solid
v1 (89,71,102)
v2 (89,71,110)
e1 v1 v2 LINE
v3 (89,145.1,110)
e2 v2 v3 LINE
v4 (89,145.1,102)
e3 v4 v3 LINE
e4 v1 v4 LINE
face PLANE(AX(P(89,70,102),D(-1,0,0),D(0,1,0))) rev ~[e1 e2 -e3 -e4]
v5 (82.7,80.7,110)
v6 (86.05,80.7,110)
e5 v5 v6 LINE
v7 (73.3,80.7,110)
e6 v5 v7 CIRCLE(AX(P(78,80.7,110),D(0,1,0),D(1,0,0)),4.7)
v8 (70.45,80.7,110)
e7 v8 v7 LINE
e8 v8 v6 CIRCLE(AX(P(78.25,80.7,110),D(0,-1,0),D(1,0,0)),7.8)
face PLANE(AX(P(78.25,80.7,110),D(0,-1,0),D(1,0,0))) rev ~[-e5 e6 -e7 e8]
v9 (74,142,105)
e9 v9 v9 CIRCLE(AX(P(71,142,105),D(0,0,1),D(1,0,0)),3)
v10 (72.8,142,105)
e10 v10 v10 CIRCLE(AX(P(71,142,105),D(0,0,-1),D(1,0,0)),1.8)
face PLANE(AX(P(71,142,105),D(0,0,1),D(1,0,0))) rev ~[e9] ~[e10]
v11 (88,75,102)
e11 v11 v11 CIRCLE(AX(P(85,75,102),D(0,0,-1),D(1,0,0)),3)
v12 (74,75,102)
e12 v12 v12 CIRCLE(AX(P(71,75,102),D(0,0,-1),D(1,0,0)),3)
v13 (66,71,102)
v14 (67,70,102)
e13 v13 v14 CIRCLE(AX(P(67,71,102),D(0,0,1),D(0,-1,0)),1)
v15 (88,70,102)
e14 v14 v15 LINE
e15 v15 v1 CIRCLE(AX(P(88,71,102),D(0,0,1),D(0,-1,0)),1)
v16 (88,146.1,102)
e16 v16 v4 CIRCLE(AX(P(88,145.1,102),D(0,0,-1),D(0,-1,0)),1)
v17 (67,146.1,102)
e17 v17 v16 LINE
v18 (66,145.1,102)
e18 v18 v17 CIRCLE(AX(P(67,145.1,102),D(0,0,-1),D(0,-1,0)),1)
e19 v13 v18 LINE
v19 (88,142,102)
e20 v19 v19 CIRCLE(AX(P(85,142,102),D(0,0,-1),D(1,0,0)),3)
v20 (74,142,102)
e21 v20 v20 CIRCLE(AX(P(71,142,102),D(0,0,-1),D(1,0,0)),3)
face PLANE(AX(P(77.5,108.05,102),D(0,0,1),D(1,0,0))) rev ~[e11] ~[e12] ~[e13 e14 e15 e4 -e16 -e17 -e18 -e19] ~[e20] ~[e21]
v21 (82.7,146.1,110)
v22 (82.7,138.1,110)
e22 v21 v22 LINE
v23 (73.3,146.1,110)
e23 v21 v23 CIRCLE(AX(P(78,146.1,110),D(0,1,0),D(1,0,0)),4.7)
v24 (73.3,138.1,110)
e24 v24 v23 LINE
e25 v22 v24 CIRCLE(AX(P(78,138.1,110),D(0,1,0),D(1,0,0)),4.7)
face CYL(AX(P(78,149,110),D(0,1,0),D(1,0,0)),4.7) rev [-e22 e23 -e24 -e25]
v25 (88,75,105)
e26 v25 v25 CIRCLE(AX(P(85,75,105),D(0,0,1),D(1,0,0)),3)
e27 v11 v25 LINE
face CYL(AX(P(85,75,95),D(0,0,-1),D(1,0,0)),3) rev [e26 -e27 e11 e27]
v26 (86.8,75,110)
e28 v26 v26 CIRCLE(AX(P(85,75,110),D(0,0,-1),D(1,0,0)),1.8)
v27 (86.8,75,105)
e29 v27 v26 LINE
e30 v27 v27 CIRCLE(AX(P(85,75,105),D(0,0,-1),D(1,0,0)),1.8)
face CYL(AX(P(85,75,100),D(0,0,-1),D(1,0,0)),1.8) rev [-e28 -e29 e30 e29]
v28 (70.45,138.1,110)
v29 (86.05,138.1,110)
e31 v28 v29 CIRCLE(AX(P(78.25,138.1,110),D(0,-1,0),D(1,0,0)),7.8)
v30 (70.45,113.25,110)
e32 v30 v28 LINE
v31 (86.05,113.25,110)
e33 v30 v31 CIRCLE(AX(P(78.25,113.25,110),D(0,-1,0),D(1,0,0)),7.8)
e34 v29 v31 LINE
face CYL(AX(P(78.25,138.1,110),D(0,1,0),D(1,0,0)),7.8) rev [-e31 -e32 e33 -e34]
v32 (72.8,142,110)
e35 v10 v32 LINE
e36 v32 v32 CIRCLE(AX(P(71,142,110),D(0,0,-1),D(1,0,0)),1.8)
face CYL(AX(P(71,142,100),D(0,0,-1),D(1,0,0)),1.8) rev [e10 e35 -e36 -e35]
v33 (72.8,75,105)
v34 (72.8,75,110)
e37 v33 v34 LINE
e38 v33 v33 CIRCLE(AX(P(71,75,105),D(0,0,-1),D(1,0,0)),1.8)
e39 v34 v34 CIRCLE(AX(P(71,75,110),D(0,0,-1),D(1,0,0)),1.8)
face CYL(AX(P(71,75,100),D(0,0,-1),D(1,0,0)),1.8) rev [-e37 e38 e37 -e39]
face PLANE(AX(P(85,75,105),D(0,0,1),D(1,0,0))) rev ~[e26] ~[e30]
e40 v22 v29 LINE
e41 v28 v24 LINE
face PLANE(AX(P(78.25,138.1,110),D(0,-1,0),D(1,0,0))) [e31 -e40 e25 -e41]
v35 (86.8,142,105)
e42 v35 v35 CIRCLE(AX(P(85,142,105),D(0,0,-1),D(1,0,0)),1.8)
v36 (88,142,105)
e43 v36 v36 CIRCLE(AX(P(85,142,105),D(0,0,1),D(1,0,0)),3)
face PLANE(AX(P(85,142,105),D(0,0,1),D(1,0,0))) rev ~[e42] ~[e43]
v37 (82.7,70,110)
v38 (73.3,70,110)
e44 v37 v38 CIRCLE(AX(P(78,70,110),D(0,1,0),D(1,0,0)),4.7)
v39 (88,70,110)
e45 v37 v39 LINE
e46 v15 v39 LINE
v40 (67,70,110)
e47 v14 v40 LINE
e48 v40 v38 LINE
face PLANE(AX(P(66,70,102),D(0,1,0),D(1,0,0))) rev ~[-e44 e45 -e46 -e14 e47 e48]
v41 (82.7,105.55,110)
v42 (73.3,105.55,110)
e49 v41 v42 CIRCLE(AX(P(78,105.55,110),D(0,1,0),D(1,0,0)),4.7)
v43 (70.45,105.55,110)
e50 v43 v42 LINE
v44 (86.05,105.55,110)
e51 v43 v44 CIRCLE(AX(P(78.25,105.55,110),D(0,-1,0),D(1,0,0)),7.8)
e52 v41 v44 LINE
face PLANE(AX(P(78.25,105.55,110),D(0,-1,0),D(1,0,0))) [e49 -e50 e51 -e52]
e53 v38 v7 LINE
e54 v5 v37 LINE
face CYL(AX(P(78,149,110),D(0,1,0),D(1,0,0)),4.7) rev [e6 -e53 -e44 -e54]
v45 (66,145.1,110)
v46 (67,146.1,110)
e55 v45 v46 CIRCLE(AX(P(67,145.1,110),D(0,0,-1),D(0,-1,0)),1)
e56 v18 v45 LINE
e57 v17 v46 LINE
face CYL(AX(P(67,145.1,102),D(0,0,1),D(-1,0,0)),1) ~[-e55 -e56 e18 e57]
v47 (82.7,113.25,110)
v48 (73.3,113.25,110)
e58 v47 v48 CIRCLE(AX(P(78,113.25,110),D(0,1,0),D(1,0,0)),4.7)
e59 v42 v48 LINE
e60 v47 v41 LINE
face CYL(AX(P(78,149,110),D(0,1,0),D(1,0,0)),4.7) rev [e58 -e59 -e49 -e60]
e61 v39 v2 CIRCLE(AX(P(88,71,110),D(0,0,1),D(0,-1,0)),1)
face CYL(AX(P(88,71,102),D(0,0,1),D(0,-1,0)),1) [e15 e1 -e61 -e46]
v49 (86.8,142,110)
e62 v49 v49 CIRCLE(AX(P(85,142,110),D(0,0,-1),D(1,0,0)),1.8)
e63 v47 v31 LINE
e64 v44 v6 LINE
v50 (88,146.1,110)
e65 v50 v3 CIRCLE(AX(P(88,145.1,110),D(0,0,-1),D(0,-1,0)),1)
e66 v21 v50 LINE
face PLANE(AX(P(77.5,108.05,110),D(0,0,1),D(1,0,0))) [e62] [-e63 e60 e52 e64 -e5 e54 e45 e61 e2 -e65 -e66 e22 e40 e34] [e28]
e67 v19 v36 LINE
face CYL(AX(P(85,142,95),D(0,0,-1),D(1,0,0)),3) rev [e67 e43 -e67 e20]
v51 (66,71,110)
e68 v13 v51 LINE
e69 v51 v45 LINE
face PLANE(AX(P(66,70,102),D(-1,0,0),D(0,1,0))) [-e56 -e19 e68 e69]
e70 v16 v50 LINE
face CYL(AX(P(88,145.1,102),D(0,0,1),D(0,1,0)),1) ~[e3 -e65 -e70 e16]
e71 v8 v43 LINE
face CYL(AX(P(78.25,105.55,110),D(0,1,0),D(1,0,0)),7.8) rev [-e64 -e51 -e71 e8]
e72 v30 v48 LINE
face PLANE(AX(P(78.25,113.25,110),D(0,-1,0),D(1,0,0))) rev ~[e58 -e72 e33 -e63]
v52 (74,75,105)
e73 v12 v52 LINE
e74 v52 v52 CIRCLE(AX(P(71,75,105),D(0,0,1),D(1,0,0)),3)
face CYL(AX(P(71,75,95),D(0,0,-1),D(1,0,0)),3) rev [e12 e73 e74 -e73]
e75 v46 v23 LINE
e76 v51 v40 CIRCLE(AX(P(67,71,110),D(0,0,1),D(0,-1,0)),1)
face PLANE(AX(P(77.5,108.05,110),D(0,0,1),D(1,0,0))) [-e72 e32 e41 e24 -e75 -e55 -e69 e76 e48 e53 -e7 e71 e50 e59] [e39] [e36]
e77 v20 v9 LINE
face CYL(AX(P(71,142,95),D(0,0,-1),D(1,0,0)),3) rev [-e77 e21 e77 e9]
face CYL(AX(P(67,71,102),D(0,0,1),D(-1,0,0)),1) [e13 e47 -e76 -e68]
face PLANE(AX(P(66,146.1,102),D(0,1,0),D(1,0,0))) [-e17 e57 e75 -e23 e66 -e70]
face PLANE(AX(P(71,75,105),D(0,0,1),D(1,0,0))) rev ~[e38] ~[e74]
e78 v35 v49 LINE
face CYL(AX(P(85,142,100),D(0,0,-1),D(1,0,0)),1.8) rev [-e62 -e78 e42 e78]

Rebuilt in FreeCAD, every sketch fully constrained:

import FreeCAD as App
import Part
import Sketcher
from FreeCAD import Vector


def edges_at(feature, points):
    """Names of the edges that pass closest to the given points."""
    edges = feature.Shape.Edges
    near = lambda p: min(range(len(edges)), key=lambda i: edges[i].distToShape(Part.Vertex(*p))[0])
    return sorted({f"Edge{near(p) + 1}" for p in points})


def add_polygon(sketch, points):
    """Adds a closed chain of lines whose ends are joined by coincident constraints."""
    first, n = sketch.GeometryCount, len(points)
    for a, b in zip(points, points[1:] + points[:1]):
        sketch.addGeometry(Part.LineSegment(App.Vector(*a, 0), App.Vector(*b, 0)), False)
    for i in range(n):
        sketch.addConstraint(Sketcher.Constraint("Coincident", first + i, 2, first + (i + 1) % n, 1))

doc = App.newDocument("Part")
body = doc.addObject("PartDesign::Body", "Body")

# Sketch on XY plane
sketch1 = body.newObject("Sketcher::SketchObject", "Sketch")
sketch1.AttachmentSupport = (doc.getObject("XY_Plane"), [""])
sketch1.MapMode = "FlatFace"
sketch1.addGeometry(Part.Circle(Vector(0, 0, 0), Vector(0, 0, 1), 4.7), False)
sketch1.addConstraint(Sketcher.Constraint("Coincident", 0, 3, -1, 1))
sketch1.addConstraint(Sketcher.Constraint("Diameter", 0, 9.4))
pad1 = body.newObject("PartDesign::Pad", "Pad")
pad1.Profile = sketch1
pad1.Length = 100
body2 = doc.addObject("PartDesign::Body", "Body001")
doc.recompute()

body.Placement = App.Placement(Vector(0, 0, 0), App.Rotation(Vector(1, 0, 0), 90))
boolean = body2.newObject("PartDesign::Boolean", "Boolean")
boolean.Type = "Fuse"
boolean.addObjects([body])
body3 = doc.addObject("PartDesign::Body", "Body002")
doc.recompute()

body2.Placement = App.Placement(Vector(12, 79, 0), App.Rotation(Vector(0, 0, 1), 0))
boolean2 = body3.newObject("PartDesign::Boolean", "Boolean001")
boolean2.Type = "Fuse"
boolean2.addObjects([body2])
body4 = doc.addObject("PartDesign::Body", "Body003")

# Sketch on XY plane
sketch2 = body4.newObject("Sketcher::SketchObject", "Sketch001")
sketch2.AttachmentSupport = (doc.getObject("XY_Plane003"), [""])
sketch2.MapMode = "FlatFace"
sketch2.AttachmentOffset = App.Placement(Vector(0, 0, -10), App.Rotation())
sketch2.addGeometry(Part.Circle(Vector(19, 5, 0), Vector(0, 0, 1), 1.8), False)
sketch2.addConstraint(Sketcher.Constraint("Diameter", 0, 3.6))
sketch2.addConstraint(Sketcher.Constraint("DistanceX", -1, 1, 0, 3, 19.0))
sketch2.addConstraint(Sketcher.Constraint("DistanceY", -1, 1, 0, 3, 5.0))
pad2 = body4.newObject("PartDesign::Pad", "Pad001")
pad2.Profile = sketch2
pad2.Length = 20
body5 = doc.addObject("PartDesign::Body", "Body004")

# Sketch on XY plane
sketch3 = body5.newObject("Sketcher::SketchObject", "Sketch002")
sketch3.AttachmentSupport = (doc.getObject("XY_Plane004"), [""])
sketch3.MapMode = "FlatFace"
sketch3.AttachmentOffset = App.Placement(Vector(0, 0, -15), App.Rotation())
sketch3.addGeometry(Part.Circle(Vector(19, 5, 0), Vector(0, 0, 1), 3), False)
sketch3.addConstraint(Sketcher.Constraint("Diameter", 0, 6.0))
sketch3.addConstraint(Sketcher.Constraint("DistanceX", -1, 1, 0, 3, 19.0))
sketch3.addConstraint(Sketcher.Constraint("DistanceY", -1, 1, 0, 3, 5.0))
pad3 = body5.newObject("PartDesign::Pad", "Pad002")
pad3.Profile = sketch3
pad3.Length = 10
body6 = doc.addObject("PartDesign::Body", "Body005")

# Sketch on XY plane
sketch4 = body6.newObject("Sketcher::SketchObject", "Sketch003")
sketch4.AttachmentSupport = (doc.getObject("XY_Plane005"), [""])
sketch4.MapMode = "FlatFace"
sketch4.AttachmentOffset = App.Placement(Vector(0, 0, -10), App.Rotation())
sketch4.addGeometry(Part.Circle(Vector(19, 72, 0), Vector(0, 0, 1), 1.8), False)
sketch4.addConstraint(Sketcher.Constraint("Diameter", 0, 3.6))
sketch4.addConstraint(Sketcher.Constraint("DistanceX", -1, 1, 0, 3, 19.0))
sketch4.addConstraint(Sketcher.Constraint("DistanceY", -1, 1, 0, 3, 72.0))
pad4 = body6.newObject("PartDesign::Pad", "Pad003")
pad4.Profile = sketch4
pad4.Length = 20
body7 = doc.addObject("PartDesign::Body", "Body006")

# Sketch on XY plane
sketch5 = body7.newObject("Sketcher::SketchObject", "Sketch004")
sketch5.AttachmentSupport = (doc.getObject("XY_Plane006"), [""])
sketch5.MapMode = "FlatFace"
sketch5.AttachmentOffset = App.Placement(Vector(0, 0, -15), App.Rotation())
sketch5.addGeometry(Part.Circle(Vector(19, 72, 0), Vector(0, 0, 1), 3), False)
sketch5.addConstraint(Sketcher.Constraint("Diameter", 0, 6.0))
sketch5.addConstraint(Sketcher.Constraint("DistanceX", -1, 1, 0, 3, 19.0))
sketch5.addConstraint(Sketcher.Constraint("DistanceY", -1, 1, 0, 3, 72.0))
pad5 = body7.newObject("PartDesign::Pad", "Pad004")
pad5.Profile = sketch5
pad5.Length = 10
body8 = doc.addObject("PartDesign::Body", "Body007")

# Sketch on XY plane
sketch6 = body8.newObject("Sketcher::SketchObject", "Sketch005")
sketch6.AttachmentSupport = (doc.getObject("XY_Plane007"), [""])
sketch6.MapMode = "FlatFace"
sketch6.AttachmentOffset = App.Placement(Vector(0, 0, -15), App.Rotation())
sketch6.addGeometry(Part.Circle(Vector(5, 72, 0), Vector(0, 0, 1), 3), False)
sketch6.addConstraint(Sketcher.Constraint("Diameter", 0, 6.0))
sketch6.addConstraint(Sketcher.Constraint("DistanceX", -1, 1, 0, 3, 5.0))
sketch6.addConstraint(Sketcher.Constraint("DistanceY", -1, 1, 0, 3, 72.0))
pad6 = body8.newObject("PartDesign::Pad", "Pad005")
pad6.Profile = sketch6
pad6.Length = 10
body9 = doc.addObject("PartDesign::Body", "Body008")

# Sketch on XY plane
sketch7 = body9.newObject("Sketcher::SketchObject", "Sketch006")
sketch7.AttachmentSupport = (doc.getObject("XY_Plane008"), [""])
sketch7.MapMode = "FlatFace"
sketch7.AttachmentOffset = App.Placement(Vector(0, 0, -15), App.Rotation())
sketch7.addGeometry(Part.Circle(Vector(5, 5, 0), Vector(0, 0, 1), 3), False)
sketch7.addConstraint(Sketcher.Constraint("Diameter", 0, 6.0))
sketch7.addConstraint(Sketcher.Constraint("DistanceX", -1, 1, 0, 3, 5.0))
sketch7.addConstraint(Sketcher.Constraint("DistanceY", -1, 1, 0, 3, 5.0))
pad7 = body9.newObject("PartDesign::Pad", "Pad006")
pad7.Profile = sketch7
pad7.Length = 10
body10 = doc.addObject("PartDesign::Body", "Body009")

# Sketch on XY plane
sketch8 = body10.newObject("Sketcher::SketchObject", "Sketch007")
sketch8.AttachmentSupport = (doc.getObject("XY_Plane009"), [""])
sketch8.MapMode = "FlatFace"
sketch8.AttachmentOffset = App.Placement(Vector(0, 0, -10), App.Rotation())
sketch8.addGeometry(Part.Circle(Vector(5, 5, 0), Vector(0, 0, 1), 1.8), False)
sketch8.addConstraint(Sketcher.Constraint("Diameter", 0, 3.6))
sketch8.addConstraint(Sketcher.Constraint("DistanceX", -1, 1, 0, 3, 5.0))
sketch8.addConstraint(Sketcher.Constraint("DistanceY", -1, 1, 0, 3, 5.0))
pad8 = body10.newObject("PartDesign::Pad", "Pad007")
pad8.Profile = sketch8
pad8.Length = 20
body11 = doc.addObject("PartDesign::Body", "Body010")

# Sketch on XY plane
sketch9 = body11.newObject("Sketcher::SketchObject", "Sketch008")
sketch9.AttachmentSupport = (doc.getObject("XY_Plane010"), [""])
sketch9.MapMode = "FlatFace"
sketch9.AttachmentOffset = App.Placement(Vector(0, 0, -10), App.Rotation())
sketch9.addGeometry(Part.Circle(Vector(5, 72, 0), Vector(0, 0, 1), 1.8), False)
sketch9.addConstraint(Sketcher.Constraint("Diameter", 0, 3.6))
sketch9.addConstraint(Sketcher.Constraint("DistanceX", -1, 1, 0, 3, 5.0))
sketch9.addConstraint(Sketcher.Constraint("DistanceY", -1, 1, 0, 3, 72.0))
pad9 = body11.newObject("PartDesign::Pad", "Pad008")
pad9.Profile = sketch9
pad9.Length = 20
body12 = doc.addObject("PartDesign::Body", "Body011")

# Sketch on XY plane
sketch10 = body12.newObject("Sketcher::SketchObject", "Sketch009")
sketch10.AttachmentSupport = (doc.getObject("XY_Plane011"), [""])
sketch10.MapMode = "FlatFace"
sketch10.addGeometry(Part.Circle(Vector(0, 0, 0), Vector(0, 0, 1), 8), False)
sketch10.addConstraint(Sketcher.Constraint("Coincident", 0, 3, -1, 1))
sketch10.addConstraint(Sketcher.Constraint("Diameter", 0, 15.6))
pad10 = body12.newObject("PartDesign::Pad", "Pad009")
pad10.Profile = sketch10
pad10.Length = 24.85
body13 = doc.addObject("PartDesign::Body", "Body012")
doc.recompute()

body12.Placement = App.Placement(Vector(0, 0, 0), App.Rotation(Vector(1, 0, 0), 90))
boolean3 = body13.newObject("PartDesign::Boolean", "Boolean002")
boolean3.Type = "Fuse"
boolean3.addObjects([body12])
body14 = doc.addObject("PartDesign::Body", "Body013")
doc.recompute()

body13.Placement = App.Placement(Vector(12.25, 68.1, 0), App.Rotation(Vector(0, 0, 1), 0))
boolean4 = body14.newObject("PartDesign::Boolean", "Boolean003")
boolean4.Type = "Fuse"
boolean4.addObjects([body13])
body15 = doc.addObject("PartDesign::Body", "Body014")

# Sketch on XY plane
sketch11 = body15.newObject("Sketcher::SketchObject", "Sketch010")
sketch11.AttachmentSupport = (doc.getObject("XY_Plane014"), [""])
sketch11.MapMode = "FlatFace"
sketch11.addGeometry(Part.Circle(Vector(0, 0, 0), Vector(0, 0, 1), 4.4), False)
sketch11.addConstraint(Sketcher.Constraint("Coincident", 0, 3, -1, 1))
sketch11.addConstraint(Sketcher.Constraint("Diameter", 0, 8.8))
pad11 = body15.newObject("PartDesign::Pad", "Pad010")
pad11.Profile = sketch11
pad11.Length = 76.1
body16 = doc.addObject("PartDesign::Body", "Body015")
doc.recompute()

body15.Placement = App.Placement(Vector(0, 0, 0), App.Rotation(Vector(1, 0, 0), 90))
boolean5 = body16.newObject("PartDesign::Boolean", "Boolean004")
boolean5.Type = "Fuse"
boolean5.addObjects([body15])
body17 = doc.addObject("PartDesign::Body", "Body016")
doc.recompute()

body16.Placement = App.Placement(Vector(12.25, 76.1, 0), App.Rotation(Vector(0, 0, 1), 0))
boolean6 = body17.newObject("PartDesign::Boolean", "Boolean005")
boolean6.Type = "Fuse"
boolean6.addObjects([body16])
body18 = doc.addObject("PartDesign::Body", "Body017")

# Sketch on XY plane
sketch12 = body18.newObject("Sketcher::SketchObject", "Sketch011")
sketch12.AttachmentSupport = (doc.getObject("XY_Plane017"), [""])
sketch12.MapMode = "FlatFace"
sketch12.addGeometry(Part.Circle(Vector(0, 0, 0), Vector(0, 0, 1), 8), False)
sketch12.addConstraint(Sketcher.Constraint("Coincident", 0, 3, -1, 1))
sketch12.addConstraint(Sketcher.Constraint("Diameter", 0, 15.6))
pad12 = body18.newObject("PartDesign::Pad", "Pad011")
pad12.Profile = sketch12
pad12.Length = 24.85
body19 = doc.addObject("PartDesign::Body", "Body018")
doc.recompute()

body18.Placement = App.Placement(Vector(0, 0, 0), App.Rotation(Vector(1, 0, 0), 90))
boolean7 = body19.newObject("PartDesign::Boolean", "Boolean006")
boolean7.Type = "Fuse"
boolean7.addObjects([body18])
body20 = doc.addObject("PartDesign::Body", "Body019")
doc.recompute()

body19.Placement = App.Placement(Vector(12.25, 35.55, 0), App.Rotation(Vector(0, 0, 1), 0))
boolean8 = body20.newObject("PartDesign::Boolean", "Boolean007")
boolean8.Type = "Fuse"
boolean8.addObjects([body19])
body21 = doc.addObject("PartDesign::Body", "Body020")

# Sketch on XY plane
sketch13 = body21.newObject("Sketcher::SketchObject", "Sketch012")
sketch13.AttachmentSupport = (doc.getObject("XY_Plane020"), [""])
sketch13.MapMode = "FlatFace"
sketch13.AttachmentOffset = App.Placement(Vector(0, 0, -8), App.Rotation())
add_polygon(sketch13, [(0, 76), (0, 0), (23, 0), (23, 76)])  # lines 0-3
sketch13.addConstraint(Sketcher.Constraint("Vertical", 0))
sketch13.addConstraint(Sketcher.Constraint("Horizontal", 1))
sketch13.addConstraint(Sketcher.Constraint("Vertical", 2))
sketch13.addConstraint(Sketcher.Constraint("Horizontal", 3))
sketch13.addConstraint(Sketcher.Constraint("Coincident", 0, 2, -1, 1))
sketch13.addConstraint(Sketcher.Constraint("DistanceX", 1, 1, 1, 2, 23.0))
sketch13.addConstraint(Sketcher.Constraint("DistanceY", 0, 2, 0, 1, 76.1))
pad13 = body21.newObject("PartDesign::Pad", "Pad012")
pad13.Profile = sketch13
pad13.Length = 8
doc.recompute()

boolean9 = body21.newObject("PartDesign::Boolean", "Boolean008")
boolean9.Type = "Cut"
boolean9.addObjects([body20])
doc.recompute()

boolean10 = body21.newObject("PartDesign::Boolean", "Boolean009")
boolean10.Type = "Cut"
boolean10.addObjects([body17])
doc.recompute()

boolean11 = body21.newObject("PartDesign::Boolean", "Boolean010")
boolean11.Type = "Cut"
boolean11.addObjects([body14])
doc.recompute()

boolean12 = body21.newObject("PartDesign::Boolean", "Boolean011")
boolean12.Type = "Cut"
boolean12.addObjects([body11])
doc.recompute()

boolean13 = body21.newObject("PartDesign::Boolean", "Boolean012")
boolean13.Type = "Cut"
boolean13.addObjects([body10])
doc.recompute()

fillet = body21.newObject("PartDesign::Fillet", "Fillet")
fillet.Base = (boolean13, edges_at(boolean13, [
    (0, 0, -4),
    (0, 76.1, -4),
    (23, 0, -4),
    (23, 76.1, -4),
]))
fillet.Radius = 1
doc.recompute()

boolean14 = body21.newObject("PartDesign::Boolean", "Boolean013")
boolean14.Type = "Cut"
boolean14.addObjects([body9])
doc.recompute()

boolean15 = body21.newObject("PartDesign::Boolean", "Boolean014")
boolean15.Type = "Cut"
boolean15.addObjects([body8])
doc.recompute()

boolean16 = body21.newObject("PartDesign::Boolean", "Boolean015")
boolean16.Type = "Cut"
boolean16.addObjects([body7])
doc.recompute()

boolean17 = body21.newObject("PartDesign::Boolean", "Boolean016")
boolean17.Type = "Cut"
boolean17.addObjects([body6])
doc.recompute()

boolean18 = body21.newObject("PartDesign::Boolean", "Boolean017")
boolean18.Type = "Cut"
boolean18.addObjects([body5])
doc.recompute()

boolean19 = body21.newObject("PartDesign::Boolean", "Boolean018")
boolean19.Type = "Cut"
boolean19.addObjects([body4])
doc.recompute()

boolean20 = body21.newObject("PartDesign::Boolean", "Boolean019")
boolean20.Type = "Cut"
boolean20.addObjects([body3])
body22 = doc.addObject("PartDesign::Body", "Body021")
doc.recompute()

body21.Placement = App.Placement(Vector(66, 70, 110), App.Rotation(Vector(0, 0, 1), 0))
boolean21 = body22.newObject("PartDesign::Boolean", "Boolean020")
boolean21.Type = "Fuse"
boolean21.addObjects([body21])

doc.recompute()
